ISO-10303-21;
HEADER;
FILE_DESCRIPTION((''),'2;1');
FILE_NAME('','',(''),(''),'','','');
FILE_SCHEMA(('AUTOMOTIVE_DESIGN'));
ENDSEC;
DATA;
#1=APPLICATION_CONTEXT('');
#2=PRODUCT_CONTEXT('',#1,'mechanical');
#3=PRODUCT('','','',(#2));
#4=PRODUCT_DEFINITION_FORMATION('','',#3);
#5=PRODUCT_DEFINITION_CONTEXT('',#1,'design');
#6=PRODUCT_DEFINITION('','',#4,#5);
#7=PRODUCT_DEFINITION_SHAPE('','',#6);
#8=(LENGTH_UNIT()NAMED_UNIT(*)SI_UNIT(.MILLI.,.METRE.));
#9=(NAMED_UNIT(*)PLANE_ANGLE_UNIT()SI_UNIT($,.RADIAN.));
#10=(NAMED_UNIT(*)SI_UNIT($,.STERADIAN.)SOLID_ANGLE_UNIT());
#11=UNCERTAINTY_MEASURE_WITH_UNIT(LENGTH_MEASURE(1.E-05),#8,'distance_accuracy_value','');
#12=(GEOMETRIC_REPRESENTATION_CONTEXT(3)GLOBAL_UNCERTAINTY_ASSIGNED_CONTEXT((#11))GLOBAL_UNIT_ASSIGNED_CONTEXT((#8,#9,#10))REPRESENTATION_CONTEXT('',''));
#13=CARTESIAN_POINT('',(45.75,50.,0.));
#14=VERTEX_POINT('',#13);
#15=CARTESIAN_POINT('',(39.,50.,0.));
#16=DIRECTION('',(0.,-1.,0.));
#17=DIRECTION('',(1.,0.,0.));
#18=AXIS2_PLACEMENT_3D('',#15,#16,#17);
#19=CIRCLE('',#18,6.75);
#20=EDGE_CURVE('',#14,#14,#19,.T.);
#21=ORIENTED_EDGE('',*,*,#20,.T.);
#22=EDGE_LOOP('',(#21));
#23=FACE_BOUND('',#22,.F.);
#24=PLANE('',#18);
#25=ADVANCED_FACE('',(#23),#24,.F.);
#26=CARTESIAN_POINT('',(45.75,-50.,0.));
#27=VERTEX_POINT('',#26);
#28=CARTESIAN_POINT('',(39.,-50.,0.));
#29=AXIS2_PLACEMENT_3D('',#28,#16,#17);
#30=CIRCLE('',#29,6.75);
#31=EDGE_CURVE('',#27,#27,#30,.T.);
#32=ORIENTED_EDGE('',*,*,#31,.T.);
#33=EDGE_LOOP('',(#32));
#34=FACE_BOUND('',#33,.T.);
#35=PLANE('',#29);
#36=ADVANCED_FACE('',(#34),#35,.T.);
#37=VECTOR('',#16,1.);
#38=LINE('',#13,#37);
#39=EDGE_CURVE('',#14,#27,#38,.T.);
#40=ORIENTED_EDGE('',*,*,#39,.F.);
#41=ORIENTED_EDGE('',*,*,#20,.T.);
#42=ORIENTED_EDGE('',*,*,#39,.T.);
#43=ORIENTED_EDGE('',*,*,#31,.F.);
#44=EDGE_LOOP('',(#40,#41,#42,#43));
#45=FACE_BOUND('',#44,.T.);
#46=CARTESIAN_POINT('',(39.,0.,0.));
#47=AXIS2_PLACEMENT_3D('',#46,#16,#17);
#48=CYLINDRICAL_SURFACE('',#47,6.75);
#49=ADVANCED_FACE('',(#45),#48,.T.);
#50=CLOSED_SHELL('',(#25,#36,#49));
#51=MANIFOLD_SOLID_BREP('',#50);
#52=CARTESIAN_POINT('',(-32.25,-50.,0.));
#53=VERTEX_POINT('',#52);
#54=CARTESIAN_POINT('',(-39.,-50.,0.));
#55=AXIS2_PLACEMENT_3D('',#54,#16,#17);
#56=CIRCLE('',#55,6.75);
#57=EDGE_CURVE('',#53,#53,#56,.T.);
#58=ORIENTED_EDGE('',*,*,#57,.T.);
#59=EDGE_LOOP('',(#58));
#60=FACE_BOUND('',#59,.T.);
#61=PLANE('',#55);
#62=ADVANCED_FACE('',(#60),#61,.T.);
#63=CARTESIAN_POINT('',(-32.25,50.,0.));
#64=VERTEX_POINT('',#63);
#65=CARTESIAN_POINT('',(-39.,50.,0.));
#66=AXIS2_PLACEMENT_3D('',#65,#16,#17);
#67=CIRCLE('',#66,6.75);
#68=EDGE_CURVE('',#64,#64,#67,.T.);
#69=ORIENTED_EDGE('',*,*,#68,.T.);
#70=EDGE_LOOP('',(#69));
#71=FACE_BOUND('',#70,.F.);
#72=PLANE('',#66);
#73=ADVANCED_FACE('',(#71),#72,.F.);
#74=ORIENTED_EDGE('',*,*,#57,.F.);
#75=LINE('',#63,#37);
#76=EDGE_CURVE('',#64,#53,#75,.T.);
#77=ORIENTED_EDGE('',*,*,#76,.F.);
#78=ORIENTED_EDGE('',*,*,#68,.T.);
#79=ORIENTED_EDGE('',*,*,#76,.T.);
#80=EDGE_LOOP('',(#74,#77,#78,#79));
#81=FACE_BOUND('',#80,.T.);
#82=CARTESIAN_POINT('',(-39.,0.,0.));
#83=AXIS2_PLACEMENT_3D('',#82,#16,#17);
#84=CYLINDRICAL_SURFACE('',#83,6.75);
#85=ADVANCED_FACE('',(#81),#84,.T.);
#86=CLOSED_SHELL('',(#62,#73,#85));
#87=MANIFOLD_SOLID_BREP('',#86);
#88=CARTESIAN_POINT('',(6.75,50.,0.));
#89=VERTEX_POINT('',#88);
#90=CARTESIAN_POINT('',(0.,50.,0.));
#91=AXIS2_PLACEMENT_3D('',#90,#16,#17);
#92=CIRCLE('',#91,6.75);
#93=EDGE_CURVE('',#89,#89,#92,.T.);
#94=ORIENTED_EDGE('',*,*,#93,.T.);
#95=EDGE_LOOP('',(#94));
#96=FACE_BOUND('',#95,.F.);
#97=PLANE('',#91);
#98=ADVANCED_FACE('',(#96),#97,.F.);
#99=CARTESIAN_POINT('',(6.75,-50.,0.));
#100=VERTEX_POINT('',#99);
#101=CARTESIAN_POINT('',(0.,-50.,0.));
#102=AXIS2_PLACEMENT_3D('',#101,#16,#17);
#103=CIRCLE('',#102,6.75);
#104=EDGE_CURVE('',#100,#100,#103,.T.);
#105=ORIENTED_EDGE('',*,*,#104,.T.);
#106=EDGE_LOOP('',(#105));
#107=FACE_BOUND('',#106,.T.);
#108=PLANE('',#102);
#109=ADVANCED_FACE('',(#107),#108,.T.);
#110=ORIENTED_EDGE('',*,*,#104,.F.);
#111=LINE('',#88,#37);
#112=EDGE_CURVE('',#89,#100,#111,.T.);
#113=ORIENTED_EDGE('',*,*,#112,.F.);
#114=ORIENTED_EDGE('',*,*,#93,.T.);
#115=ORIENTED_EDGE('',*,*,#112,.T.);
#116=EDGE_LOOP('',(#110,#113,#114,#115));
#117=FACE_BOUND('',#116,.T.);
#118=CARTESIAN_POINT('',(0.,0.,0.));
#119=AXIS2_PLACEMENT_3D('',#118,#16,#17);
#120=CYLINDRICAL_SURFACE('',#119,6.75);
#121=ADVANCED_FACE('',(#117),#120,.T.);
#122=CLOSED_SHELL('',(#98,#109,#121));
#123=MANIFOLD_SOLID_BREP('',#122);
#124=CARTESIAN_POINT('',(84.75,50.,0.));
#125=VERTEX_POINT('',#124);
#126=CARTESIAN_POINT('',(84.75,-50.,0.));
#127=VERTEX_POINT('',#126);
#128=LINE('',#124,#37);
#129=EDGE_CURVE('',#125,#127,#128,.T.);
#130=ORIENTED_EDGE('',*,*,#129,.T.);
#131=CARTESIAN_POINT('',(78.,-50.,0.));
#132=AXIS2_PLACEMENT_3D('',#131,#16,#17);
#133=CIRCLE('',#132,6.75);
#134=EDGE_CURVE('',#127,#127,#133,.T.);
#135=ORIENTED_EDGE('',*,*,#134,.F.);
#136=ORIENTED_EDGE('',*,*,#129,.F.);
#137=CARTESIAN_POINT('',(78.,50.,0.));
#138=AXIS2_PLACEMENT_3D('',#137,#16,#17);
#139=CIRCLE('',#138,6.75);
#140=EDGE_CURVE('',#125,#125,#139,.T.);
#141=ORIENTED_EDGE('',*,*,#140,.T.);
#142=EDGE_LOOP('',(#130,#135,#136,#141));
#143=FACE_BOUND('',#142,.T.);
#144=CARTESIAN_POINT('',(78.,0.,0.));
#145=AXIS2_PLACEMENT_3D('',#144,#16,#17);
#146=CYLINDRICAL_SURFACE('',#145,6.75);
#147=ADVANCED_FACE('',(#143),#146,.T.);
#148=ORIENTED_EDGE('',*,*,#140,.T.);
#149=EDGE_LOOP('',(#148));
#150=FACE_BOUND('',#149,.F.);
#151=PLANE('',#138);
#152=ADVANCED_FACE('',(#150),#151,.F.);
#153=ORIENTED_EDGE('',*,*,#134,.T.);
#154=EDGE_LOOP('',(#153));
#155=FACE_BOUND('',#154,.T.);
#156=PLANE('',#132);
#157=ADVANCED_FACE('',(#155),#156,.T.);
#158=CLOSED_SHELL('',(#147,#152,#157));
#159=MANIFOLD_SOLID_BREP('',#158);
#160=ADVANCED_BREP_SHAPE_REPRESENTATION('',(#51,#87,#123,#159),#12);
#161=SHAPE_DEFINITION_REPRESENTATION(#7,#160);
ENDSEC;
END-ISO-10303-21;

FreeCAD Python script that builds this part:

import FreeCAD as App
import Part
import Sketcher

V = App.Vector

doc = App.newDocument("Part")
body = doc.addObject("PartDesign::Body", "Body")
body.AllowCompound = True

# Sketch on XZ plane
sketch1 = body.newObject("Sketcher::SketchObject", "Sketch")
sketch1.AttachmentSupport = (doc.getObject("XZ_Plane"), [""])
sketch1.MapMode = "FlatFace"
sketch1.addGeometry([
    Part.Circle(V(0, 0, 0), V(0, 0, 1), 7),
    Part.Circle(V(39, 0, 0), V(0, 0, 1), 7),
    Part.Circle(V(-39, 0, 0), V(0, 0, 1), 7),
    Part.Circle(V(78, 0, 0), V(0, 0, 1), 7),
], False)
sketch1.addConstraint([
    Sketcher.Constraint("Coincident", 0, 3, -1, 1),
    Sketcher.Constraint("Equal", 0, 1),
    Sketcher.Constraint("Equal", 1, 2),
    Sketcher.Constraint("Equal", 2, 3),
    Sketcher.Constraint("Symmetric", 1, 3, 2, 3, -1, 1),
    Sketcher.Constraint("PointOnObject", 1, 3, -1),
    Sketcher.Constraint("PointOnObject", 3, 3, -1),
    Sketcher.Constraint("Diameter", 0, 13.5),
    Sketcher.Constraint("DistanceX", -1, 1, 1, 3, 39.0),
    Sketcher.Constraint("DistanceX", -1, 1, 3, 3, 78.0),
])
pad1 = body.newObject("PartDesign::Pad", "Pad")
pad1.Profile = sketch1
pad1.Type = "TwoLengths"
pad1.Length = 50
pad1.Length2 = 50

doc.recompute()
